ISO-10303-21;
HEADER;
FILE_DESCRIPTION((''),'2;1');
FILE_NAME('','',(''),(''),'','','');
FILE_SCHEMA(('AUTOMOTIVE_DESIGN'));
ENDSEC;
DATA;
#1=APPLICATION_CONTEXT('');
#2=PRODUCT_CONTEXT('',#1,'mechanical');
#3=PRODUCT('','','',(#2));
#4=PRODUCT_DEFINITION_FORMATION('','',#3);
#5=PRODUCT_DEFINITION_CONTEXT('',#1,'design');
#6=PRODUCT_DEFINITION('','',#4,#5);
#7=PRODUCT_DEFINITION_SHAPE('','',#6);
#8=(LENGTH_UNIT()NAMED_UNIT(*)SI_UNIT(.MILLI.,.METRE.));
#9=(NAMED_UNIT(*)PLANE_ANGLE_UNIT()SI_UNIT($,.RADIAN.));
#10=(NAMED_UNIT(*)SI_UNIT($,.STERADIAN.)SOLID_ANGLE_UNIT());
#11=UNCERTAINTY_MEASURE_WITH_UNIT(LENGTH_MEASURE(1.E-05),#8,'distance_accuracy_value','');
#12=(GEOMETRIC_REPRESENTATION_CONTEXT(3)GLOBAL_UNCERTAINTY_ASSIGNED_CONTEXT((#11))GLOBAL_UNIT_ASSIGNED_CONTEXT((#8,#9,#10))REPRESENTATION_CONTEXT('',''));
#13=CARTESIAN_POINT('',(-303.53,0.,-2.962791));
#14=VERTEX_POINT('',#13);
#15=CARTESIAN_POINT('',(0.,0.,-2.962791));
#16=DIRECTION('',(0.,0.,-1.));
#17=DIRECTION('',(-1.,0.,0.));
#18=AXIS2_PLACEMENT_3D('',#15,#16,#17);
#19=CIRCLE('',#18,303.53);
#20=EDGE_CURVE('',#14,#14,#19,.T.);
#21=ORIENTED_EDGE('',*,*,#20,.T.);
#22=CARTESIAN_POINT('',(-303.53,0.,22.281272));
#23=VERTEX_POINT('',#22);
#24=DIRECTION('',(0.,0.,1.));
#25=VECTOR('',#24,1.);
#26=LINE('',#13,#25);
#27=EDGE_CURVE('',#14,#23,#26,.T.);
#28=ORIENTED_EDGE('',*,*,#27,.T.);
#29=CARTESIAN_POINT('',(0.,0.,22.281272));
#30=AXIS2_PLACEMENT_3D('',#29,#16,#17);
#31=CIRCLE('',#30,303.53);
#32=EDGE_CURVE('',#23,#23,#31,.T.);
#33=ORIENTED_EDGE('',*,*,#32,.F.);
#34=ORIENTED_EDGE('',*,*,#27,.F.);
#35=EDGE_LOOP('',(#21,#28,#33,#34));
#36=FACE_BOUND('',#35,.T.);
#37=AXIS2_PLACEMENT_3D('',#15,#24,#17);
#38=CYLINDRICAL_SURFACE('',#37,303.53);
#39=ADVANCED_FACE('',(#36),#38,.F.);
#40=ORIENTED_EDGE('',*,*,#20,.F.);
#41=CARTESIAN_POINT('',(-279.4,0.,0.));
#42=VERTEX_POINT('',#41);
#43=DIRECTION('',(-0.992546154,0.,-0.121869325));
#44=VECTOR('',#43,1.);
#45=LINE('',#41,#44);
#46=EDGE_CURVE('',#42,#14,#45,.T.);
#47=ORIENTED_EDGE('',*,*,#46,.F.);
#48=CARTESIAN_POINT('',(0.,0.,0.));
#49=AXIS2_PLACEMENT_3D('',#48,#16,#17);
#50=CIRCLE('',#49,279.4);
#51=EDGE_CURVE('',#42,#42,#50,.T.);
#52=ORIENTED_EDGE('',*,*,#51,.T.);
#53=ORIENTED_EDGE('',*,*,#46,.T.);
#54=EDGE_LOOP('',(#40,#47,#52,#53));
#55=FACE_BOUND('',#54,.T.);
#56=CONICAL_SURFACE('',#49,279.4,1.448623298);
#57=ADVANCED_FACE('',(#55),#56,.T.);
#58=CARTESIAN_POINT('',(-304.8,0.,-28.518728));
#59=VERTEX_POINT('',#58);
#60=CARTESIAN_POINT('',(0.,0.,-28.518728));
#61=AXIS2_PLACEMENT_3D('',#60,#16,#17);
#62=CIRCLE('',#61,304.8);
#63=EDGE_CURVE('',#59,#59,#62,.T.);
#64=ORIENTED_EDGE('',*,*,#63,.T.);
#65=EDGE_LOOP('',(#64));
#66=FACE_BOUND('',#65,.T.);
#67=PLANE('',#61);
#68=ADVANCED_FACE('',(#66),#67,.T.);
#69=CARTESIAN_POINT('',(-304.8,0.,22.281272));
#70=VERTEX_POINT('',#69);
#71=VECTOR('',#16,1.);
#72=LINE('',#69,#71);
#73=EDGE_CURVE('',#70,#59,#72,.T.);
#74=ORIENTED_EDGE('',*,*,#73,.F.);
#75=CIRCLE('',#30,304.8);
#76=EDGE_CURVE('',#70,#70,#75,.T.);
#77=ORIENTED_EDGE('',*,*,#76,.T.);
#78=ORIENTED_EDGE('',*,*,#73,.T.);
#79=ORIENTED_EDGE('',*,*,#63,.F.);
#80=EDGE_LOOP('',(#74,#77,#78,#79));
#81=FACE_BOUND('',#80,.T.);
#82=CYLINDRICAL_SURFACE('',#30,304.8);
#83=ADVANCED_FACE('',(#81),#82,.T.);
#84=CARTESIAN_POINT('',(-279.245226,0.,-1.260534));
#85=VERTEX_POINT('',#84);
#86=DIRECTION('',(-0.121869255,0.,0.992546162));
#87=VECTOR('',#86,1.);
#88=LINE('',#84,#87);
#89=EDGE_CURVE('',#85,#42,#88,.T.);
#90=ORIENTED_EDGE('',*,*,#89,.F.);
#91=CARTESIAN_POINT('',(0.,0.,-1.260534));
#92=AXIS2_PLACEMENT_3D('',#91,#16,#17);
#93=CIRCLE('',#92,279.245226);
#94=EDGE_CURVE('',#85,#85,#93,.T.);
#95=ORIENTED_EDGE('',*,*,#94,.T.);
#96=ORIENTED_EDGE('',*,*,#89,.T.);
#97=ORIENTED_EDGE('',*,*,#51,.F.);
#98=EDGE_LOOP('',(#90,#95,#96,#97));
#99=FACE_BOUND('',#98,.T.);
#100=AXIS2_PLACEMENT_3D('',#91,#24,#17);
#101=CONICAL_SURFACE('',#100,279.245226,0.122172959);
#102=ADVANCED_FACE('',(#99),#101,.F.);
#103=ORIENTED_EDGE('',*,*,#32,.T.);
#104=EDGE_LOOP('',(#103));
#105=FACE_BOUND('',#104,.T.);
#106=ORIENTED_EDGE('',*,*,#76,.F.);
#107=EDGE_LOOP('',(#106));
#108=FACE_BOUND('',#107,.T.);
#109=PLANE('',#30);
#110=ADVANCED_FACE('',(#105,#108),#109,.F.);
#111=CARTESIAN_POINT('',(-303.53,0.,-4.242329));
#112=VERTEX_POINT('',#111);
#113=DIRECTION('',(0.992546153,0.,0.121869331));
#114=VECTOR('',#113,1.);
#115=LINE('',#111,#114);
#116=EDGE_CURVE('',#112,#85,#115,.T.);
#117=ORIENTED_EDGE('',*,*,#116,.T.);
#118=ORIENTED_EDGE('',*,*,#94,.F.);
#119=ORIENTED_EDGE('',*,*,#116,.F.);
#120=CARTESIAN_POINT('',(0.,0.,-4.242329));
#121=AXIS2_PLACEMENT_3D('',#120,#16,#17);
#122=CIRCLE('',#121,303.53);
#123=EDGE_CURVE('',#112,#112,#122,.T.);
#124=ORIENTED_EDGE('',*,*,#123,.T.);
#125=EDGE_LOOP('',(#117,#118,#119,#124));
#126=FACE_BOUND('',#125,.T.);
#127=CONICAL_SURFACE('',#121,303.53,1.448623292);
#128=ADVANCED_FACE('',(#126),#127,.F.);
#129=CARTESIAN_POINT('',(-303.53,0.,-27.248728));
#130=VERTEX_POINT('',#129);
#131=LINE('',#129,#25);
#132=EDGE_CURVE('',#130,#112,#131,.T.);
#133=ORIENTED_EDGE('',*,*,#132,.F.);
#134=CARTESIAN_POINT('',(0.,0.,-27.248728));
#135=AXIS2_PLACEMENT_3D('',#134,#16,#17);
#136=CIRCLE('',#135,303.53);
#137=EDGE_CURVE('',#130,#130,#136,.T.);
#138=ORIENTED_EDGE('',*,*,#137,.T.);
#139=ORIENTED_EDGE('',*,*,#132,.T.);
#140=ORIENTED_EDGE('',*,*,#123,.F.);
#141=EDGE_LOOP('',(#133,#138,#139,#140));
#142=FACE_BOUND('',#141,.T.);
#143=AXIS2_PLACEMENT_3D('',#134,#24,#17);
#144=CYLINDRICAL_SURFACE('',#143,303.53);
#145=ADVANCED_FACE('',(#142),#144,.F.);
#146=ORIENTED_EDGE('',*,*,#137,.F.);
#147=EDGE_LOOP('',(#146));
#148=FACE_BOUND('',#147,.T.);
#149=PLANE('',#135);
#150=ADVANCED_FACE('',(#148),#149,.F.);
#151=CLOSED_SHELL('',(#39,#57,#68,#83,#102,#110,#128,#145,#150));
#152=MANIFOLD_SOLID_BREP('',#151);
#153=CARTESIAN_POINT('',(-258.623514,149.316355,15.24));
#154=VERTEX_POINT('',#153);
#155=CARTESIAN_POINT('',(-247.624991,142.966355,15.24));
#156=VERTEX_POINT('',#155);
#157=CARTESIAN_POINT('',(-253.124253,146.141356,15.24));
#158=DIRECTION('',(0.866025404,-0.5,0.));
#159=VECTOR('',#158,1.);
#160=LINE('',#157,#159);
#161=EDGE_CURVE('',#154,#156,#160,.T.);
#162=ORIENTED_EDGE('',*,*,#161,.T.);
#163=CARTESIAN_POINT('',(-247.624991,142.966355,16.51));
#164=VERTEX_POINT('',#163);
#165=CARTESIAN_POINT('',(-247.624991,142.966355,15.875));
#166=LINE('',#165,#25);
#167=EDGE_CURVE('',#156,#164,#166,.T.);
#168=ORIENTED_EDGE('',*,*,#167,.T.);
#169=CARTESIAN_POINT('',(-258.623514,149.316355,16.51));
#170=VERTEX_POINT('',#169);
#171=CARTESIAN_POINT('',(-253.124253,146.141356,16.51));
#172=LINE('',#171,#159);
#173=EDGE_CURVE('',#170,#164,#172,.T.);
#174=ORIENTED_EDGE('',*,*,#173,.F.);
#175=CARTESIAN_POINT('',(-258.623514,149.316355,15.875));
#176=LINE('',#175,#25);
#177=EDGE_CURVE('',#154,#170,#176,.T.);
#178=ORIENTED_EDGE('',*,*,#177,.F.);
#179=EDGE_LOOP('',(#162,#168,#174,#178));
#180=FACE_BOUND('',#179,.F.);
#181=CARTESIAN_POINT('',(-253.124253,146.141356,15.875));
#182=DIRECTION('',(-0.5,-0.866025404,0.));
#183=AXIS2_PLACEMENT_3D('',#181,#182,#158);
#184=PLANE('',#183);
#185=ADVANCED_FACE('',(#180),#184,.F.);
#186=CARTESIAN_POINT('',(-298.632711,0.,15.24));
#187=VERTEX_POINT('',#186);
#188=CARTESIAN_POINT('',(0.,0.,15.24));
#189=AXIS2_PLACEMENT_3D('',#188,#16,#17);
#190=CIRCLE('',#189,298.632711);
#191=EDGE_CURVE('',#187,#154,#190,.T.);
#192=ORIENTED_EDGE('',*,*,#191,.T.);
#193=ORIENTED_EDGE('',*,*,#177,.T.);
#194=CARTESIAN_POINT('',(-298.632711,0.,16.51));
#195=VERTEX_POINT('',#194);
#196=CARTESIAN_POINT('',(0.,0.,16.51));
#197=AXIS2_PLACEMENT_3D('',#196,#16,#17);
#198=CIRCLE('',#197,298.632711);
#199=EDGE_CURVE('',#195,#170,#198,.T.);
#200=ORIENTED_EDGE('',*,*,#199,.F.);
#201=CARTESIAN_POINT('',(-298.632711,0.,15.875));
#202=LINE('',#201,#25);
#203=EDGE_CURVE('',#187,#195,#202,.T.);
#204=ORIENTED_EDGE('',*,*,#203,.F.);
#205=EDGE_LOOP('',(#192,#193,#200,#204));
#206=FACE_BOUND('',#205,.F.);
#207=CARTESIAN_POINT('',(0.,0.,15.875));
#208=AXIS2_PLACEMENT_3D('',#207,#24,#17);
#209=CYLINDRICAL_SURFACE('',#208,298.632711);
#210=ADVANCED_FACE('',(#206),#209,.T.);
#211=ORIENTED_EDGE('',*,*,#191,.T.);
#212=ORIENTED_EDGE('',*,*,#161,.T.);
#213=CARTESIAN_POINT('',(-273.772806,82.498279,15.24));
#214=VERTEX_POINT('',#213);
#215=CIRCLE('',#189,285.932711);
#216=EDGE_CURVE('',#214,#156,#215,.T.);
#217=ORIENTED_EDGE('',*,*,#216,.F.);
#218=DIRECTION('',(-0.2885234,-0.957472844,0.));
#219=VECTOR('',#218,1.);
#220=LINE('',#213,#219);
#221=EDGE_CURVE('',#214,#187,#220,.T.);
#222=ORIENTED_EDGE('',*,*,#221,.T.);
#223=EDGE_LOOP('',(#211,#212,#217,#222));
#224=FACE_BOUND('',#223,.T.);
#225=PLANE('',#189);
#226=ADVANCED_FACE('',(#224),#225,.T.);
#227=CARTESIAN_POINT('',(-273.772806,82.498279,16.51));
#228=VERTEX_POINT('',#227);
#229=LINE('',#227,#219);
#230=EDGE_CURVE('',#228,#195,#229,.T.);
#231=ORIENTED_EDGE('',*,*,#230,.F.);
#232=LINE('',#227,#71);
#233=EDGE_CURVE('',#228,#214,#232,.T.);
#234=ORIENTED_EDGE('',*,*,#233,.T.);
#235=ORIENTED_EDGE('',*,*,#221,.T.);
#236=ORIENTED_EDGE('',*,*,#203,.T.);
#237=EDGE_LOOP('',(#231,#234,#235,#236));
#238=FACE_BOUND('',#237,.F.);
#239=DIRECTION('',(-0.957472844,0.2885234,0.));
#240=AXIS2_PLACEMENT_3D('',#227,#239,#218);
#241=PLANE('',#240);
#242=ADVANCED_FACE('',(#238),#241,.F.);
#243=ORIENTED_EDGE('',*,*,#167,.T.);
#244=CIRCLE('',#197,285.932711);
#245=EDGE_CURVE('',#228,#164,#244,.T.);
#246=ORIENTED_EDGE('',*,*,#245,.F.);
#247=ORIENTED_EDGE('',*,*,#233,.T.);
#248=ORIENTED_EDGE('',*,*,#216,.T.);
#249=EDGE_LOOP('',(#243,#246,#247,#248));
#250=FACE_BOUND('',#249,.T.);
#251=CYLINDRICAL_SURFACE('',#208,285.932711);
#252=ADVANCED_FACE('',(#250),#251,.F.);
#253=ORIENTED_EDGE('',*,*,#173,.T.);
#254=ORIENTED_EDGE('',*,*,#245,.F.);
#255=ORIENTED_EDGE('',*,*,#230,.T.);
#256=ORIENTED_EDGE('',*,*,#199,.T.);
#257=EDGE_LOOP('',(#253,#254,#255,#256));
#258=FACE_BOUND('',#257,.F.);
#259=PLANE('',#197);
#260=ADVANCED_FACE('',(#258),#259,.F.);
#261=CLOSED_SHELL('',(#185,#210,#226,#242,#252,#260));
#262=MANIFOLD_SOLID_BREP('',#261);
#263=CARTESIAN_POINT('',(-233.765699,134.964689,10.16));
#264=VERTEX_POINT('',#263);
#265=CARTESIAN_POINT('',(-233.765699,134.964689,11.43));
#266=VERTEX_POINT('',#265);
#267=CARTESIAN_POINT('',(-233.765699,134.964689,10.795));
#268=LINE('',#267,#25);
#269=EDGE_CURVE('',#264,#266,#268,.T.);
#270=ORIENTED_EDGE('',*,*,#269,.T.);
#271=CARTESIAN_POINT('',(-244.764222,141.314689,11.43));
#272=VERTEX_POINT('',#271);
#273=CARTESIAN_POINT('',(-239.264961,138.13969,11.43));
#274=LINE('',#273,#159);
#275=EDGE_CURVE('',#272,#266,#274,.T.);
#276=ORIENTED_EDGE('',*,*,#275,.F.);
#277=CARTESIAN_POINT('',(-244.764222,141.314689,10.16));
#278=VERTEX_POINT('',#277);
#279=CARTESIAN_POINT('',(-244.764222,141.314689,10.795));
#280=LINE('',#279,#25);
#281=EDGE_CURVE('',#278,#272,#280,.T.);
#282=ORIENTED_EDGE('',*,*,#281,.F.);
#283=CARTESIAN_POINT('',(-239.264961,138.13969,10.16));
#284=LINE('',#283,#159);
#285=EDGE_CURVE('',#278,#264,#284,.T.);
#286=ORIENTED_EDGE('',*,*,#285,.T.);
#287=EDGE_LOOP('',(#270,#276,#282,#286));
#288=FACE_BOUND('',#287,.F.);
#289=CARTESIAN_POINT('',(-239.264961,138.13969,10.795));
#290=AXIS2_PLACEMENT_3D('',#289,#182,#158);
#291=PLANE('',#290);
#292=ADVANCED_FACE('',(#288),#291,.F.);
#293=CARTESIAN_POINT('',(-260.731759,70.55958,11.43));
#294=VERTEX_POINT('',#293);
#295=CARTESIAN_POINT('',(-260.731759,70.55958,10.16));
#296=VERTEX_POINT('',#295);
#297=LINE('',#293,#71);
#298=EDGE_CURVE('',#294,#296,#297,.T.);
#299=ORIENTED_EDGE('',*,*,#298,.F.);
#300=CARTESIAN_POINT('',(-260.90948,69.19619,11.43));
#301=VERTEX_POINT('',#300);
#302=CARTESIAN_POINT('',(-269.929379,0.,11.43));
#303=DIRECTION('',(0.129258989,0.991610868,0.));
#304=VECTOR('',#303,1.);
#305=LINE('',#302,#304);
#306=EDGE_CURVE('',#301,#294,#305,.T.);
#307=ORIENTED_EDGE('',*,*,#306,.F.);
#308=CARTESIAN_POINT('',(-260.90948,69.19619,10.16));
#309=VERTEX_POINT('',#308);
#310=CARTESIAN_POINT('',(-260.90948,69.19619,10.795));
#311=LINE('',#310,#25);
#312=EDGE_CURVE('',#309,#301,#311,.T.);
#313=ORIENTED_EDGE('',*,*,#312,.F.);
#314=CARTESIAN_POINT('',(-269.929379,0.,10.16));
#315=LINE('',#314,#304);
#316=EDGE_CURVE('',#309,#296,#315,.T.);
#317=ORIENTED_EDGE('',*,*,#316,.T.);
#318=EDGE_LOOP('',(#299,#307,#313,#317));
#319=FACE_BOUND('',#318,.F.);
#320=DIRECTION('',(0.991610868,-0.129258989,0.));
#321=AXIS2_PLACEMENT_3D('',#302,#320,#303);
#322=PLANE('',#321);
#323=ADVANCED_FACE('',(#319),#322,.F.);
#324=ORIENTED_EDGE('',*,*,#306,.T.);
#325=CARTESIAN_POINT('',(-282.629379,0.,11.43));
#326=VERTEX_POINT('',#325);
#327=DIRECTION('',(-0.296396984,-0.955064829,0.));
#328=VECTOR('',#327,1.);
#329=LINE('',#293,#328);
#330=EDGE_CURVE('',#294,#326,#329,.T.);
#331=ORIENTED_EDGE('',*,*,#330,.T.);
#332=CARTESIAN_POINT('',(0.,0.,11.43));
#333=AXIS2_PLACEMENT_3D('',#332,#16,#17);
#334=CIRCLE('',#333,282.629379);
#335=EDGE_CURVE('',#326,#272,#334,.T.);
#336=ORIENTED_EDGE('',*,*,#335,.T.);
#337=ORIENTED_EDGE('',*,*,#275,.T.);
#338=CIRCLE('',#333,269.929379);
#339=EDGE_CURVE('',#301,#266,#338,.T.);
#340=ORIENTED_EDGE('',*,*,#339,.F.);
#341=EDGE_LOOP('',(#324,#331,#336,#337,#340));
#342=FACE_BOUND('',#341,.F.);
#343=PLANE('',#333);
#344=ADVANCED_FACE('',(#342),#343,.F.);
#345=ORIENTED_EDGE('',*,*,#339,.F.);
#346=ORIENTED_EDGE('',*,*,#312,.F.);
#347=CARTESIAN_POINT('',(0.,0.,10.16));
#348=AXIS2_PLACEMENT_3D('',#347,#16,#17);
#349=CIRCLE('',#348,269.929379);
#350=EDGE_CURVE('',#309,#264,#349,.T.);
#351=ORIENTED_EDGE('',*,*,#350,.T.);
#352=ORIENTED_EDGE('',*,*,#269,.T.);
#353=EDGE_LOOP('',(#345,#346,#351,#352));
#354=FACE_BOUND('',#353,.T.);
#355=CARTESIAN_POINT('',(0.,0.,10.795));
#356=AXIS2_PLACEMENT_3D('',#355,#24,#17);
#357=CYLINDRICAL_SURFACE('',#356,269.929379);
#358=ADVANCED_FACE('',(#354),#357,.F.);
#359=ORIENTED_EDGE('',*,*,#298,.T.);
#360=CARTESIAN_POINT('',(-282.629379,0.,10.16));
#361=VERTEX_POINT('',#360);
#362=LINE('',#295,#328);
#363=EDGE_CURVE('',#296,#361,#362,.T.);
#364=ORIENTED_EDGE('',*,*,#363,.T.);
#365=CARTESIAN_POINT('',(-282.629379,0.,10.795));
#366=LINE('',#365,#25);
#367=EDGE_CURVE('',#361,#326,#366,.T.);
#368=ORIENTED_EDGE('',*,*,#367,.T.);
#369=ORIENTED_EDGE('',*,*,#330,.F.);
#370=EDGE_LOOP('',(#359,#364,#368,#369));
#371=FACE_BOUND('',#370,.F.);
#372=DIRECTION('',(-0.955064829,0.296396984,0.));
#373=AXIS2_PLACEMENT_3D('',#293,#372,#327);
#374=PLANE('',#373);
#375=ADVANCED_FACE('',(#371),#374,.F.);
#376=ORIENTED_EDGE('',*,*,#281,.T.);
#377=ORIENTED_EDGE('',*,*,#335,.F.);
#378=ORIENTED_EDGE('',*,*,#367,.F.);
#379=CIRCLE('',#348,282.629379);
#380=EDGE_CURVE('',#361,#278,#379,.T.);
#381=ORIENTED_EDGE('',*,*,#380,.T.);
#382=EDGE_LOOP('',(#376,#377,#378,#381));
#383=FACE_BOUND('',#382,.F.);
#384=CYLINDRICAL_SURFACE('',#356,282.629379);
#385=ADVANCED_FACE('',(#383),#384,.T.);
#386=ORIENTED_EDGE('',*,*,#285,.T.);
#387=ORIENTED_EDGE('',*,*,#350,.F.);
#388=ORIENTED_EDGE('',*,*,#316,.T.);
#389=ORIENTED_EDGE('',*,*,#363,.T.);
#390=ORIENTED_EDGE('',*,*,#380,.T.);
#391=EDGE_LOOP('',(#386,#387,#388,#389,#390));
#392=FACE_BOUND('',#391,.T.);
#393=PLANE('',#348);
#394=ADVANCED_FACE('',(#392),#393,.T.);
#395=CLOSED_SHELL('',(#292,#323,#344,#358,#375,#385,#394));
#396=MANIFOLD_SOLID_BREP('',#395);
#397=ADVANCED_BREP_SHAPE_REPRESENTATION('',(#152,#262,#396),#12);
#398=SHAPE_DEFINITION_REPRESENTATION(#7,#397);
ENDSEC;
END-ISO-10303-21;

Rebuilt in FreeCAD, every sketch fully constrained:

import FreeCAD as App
import Part
import Sketcher
Q = App.Units.Quantity

doc = App.newDocument("Part")
body = doc.addObject("PartDesign::Body", "Body")

# Sketch on XZ plane
sketch1 = body.newObject("Sketcher::SketchObject", "Sketch")
sketch1.AttachmentSupport = (doc.getObject("XZ_Plane"), [""])
sketch1.MapMode = "FlatFace"
sketch1.addGeometry([
    Part.LineSegment(App.Vector(-304.8, 22.281272, 0), App.Vector(-304.8, -28.518728, 0)),  # 0
    Part.LineSegment(App.Vector(-304.8, -28.518728, 0), App.Vector(0, -28.518728, 0)),  # 1
    Part.LineSegment(App.Vector(0, -28.518728, 0), App.Vector(0, -27.248728, 0)),  # 2
    Part.LineSegment(App.Vector(0, -27.248728, 0), App.Vector(-303.53, -27.248728, 0)),  # 3
    Part.LineSegment(App.Vector(-303.53, -27.248728, 0), App.Vector(-303.53, -4.242329, 0)),  # 4
    Part.LineSegment(App.Vector(-303.53, -4.242329, 0), App.Vector(-279.245226, -1.260534, 0)),  # 5
    Part.LineSegment(App.Vector(-279.245226, -1.260534, 0), App.Vector(-279.4, 0, 0)),  # 6
    Part.LineSegment(App.Vector(-279.4, 0, 0), App.Vector(-303.53, -2.962791, 0)),  # 7
    Part.LineSegment(App.Vector(-303.53, -2.962791, 0), App.Vector(-303.53, 22.281272, 0)),  # 8
    Part.LineSegment(App.Vector(-303.53, 22.281272, 0), App.Vector(-304.8, 22.281272, 0)),  # 9
], False)
sketch1.addConstraint([
    Sketcher.Constraint("Coincident", 0, 2, 1, 1),
    Sketcher.Constraint("Coincident", 1, 2, 2, 1),
    Sketcher.Constraint("Coincident", 2, 2, 3, 1),
    Sketcher.Constraint("Coincident", 3, 2, 4, 1),
    Sketcher.Constraint("Coincident", 4, 2, 5, 1),
    Sketcher.Constraint("Coincident", 5, 2, 6, 1),
    Sketcher.Constraint("Coincident", 6, 2, 7, 1),
    Sketcher.Constraint("Coincident", 7, 2, 8, 1),
    Sketcher.Constraint("Coincident", 8, 2, 9, 1),
    Sketcher.Constraint("Coincident", 9, 2, 0, 1),
    Sketcher.Constraint("Vertical", 0),
    Sketcher.Constraint("Horizontal", 1),
    Sketcher.Constraint("Vertical", 2),
    Sketcher.Constraint("Horizontal", 3),
    Sketcher.Constraint("Vertical", 4),
    Sketcher.Constraint("Vertical", 8),
    Sketcher.Constraint("Horizontal", 9),
    Sketcher.Constraint("PointOnObject", 1, 2, -2),
    Sketcher.Constraint("PointOnObject", 6, 2, -1),
    Sketcher.Constraint("Perpendicular", 5, 6),
    Sketcher.Constraint("Perpendicular", 6, 7),
    Sketcher.Constraint("Vertical", 4, 2, 7, 2),
    Sketcher.Constraint("Equal", 9, 2),
    Sketcher.Constraint("DistanceX", 1, 1, 1, 2, Q("12 in")),
    Sketcher.Constraint("DistanceY", 0, 2, 0, 1, Q("2 in")),
    Sketcher.Constraint("DistanceX", 6, 2, -1, 1, Q("11 in")),
    Sketcher.Constraint("Angle", 5, Q("6.999999 deg")),
    Sketcher.Constraint("DistanceX", 3, 2, 3, 1, Q("11.95 in")),
    Sketcher.Constraint("Distance", 6, Q("0.05 in")),
    Sketcher.Constraint("DistanceY", 4, 1, 4, 2, Q("23.006399 mm")),
])
revolution = body.newObject("PartDesign::Revolution", "Revolution")
revolution.Profile = sketch1
revolution.ReferenceAxis = (sketch1, ["V_Axis"])
revolution.Angle = 360
body2 = doc.addObject("PartDesign::Body", "Body001")
body2.AllowCompound = True

# Sketch on XZ plane
sketch2 = body2.newObject("Sketcher::SketchObject", "Sketch001")
sketch2.AttachmentSupport = (doc.getObject("XZ_Plane001"), [""])
sketch2.MapMode = "FlatFace"
sketch2.addGeometry([
    Part.LineSegment(App.Vector(-282.629379, 11.43, 0), App.Vector(-282.629379, 10.16, 0)),  # 0
    Part.LineSegment(App.Vector(-282.629379, 10.16, 0), App.Vector(-269.929379, 10.16, 0)),  # 1
    Part.LineSegment(App.Vector(-269.929379, 10.16, 0), App.Vector(-269.929379, 11.43, 0)),  # 2
    Part.LineSegment(App.Vector(-269.929379, 11.43, 0), App.Vector(-282.629379, 11.43, 0)),  # 3
    Part.LineSegment(App.Vector(-298.632711, 16.51, 0), App.Vector(-298.632711, 15.24, 0)),  # 4
    Part.LineSegment(App.Vector(-298.632711, 15.24, 0), App.Vector(-285.932711, 15.24, 0)),  # 5
    Part.LineSegment(App.Vector(-285.932711, 15.24, 0), App.Vector(-285.932711, 16.51, 0)),  # 6
    Part.LineSegment(App.Vector(-285.932711, 16.51, 0), App.Vector(-298.632711, 16.51, 0)),  # 7
], False)
sketch2.addConstraint([
    Sketcher.Constraint("Coincident", 0, 2, 1, 1),
    Sketcher.Constraint("Coincident", 1, 2, 2, 1),
    Sketcher.Constraint("Coincident", 2, 2, 3, 1),
    Sketcher.Constraint("Coincident", 3, 2, 0, 1),
    Sketcher.Constraint("Coincident", 4, 2, 5, 1),
    Sketcher.Constraint("Coincident", 5, 2, 6, 1),
    Sketcher.Constraint("Coincident", 6, 2, 7, 1),
    Sketcher.Constraint("Coincident", 7, 2, 4, 1),
    Sketcher.Constraint("Vertical", 0),
    Sketcher.Constraint("Horizontal", 1),
    Sketcher.Constraint("Vertical", 2),
    Sketcher.Constraint("Horizontal", 3),
    Sketcher.Constraint("Vertical", 4),
    Sketcher.Constraint("Horizontal", 5),
    Sketcher.Constraint("Vertical", 6),
    Sketcher.Constraint("Horizontal", 7),
    Sketcher.Constraint("Equal", 3, 5),
    Sketcher.Constraint("Equal", 2, 4),
    Sketcher.Constraint("DistanceX", 1, 1, 1, 2, Q("0.5 in")),
    Sketcher.Constraint("DistanceY", 0, 2, 0, 1, Q("0.05 in")),
    Sketcher.Constraint("DistanceY", -1, 1, 0, 2, Q("0.4 in")),
    Sketcher.Constraint("DistanceY", -1, 1, 4, 2, Q("0.6 in")),
    Sketcher.Constraint("DistanceX", 0, 2, -1, 1, Q("282.629379 mm")),
    Sketcher.Constraint("DistanceX", 4, 2, -1, 1, Q("298.632711 mm")),
])
revolution2 = body2.newObject("PartDesign::Revolution", "Revolution001")
revolution2.Profile = sketch2
revolution2.ReferenceAxis = (sketch2, ["V_Axis"])
revolution2.Angle = 30
revolution2.Reversed = True

# Sketch on XY plane
sketch3 = body2.newObject("Sketcher::SketchObject", "Sketch002")
sketch3.AttachmentSupport = (doc.getObject("XY_Plane001"), [""])
sketch3.MapMode = "FlatFace"
sketch3.AttachmentOffset = App.Placement(App.Vector(0, 0, 0.65 * 25.4), App.Rotation())
sketch3.addGeometry([
    Part.LineSegment(App.Vector(-273.772806, 82.498279, 0), App.Vector(-298.632711, 0, 0)),
    Part.LineSegment(App.Vector(-298.632711, 0, 0), App.Vector(-285.932711, 0, 0)),
    Part.LineSegment(App.Vector(-285.932711, 0, 0), App.Vector(-273.772806, 82.498279, 0)),
], False)
sketch3.addConstraint([
    Sketcher.Constraint("Coincident", 0, 2, 1, 1),
    Sketcher.Constraint("Coincident", 1, 2, 2, 1),
    Sketcher.Constraint("Coincident", 2, 2, 0, 1),
    Sketcher.Constraint("Horizontal", 1),
    Sketcher.Constraint("PointOnObject", 0, 2, -1),
    Sketcher.Constraint("DistanceX", 1, 1, 1, 2, Q("0.5 in")),
    Sketcher.Constraint("DistanceX", 0, 2, -1, 1, Q("298.632711 mm")),
    Sketcher.Constraint("DistanceY", -1, 1, 2, 2, Q("82.498279 mm")),
    Sketcher.Constraint("Distance", 0, Q("86.162526 mm")),
])
pocket1 = body2.newObject("PartDesign::Pocket", "Pocket")
pocket1.Profile = sketch3
pocket1.Type = "ThroughAll"

# Sketch on XY plane
sketch4 = body2.newObject("Sketcher::SketchObject", "Sketch003")
sketch4.AttachmentSupport = (doc.getObject("XY_Plane001"), [""])
sketch4.MapMode = "FlatFace"
sketch4.AttachmentOffset = App.Placement(App.Vector(0, 0, 0.45 * 25.4), App.Rotation())
sketch4.addGeometry([
    Part.LineSegment(App.Vector(-260.731759, 70.55958, 0), App.Vector(-282.629379, 0, 0)),
    Part.LineSegment(App.Vector(-282.629379, 0, 0), App.Vector(-269.929379, 0, 0)),
    Part.LineSegment(App.Vector(-269.929379, 0, 0), App.Vector(-260.731759, 70.55958, 0)),
], False)
sketch4.addConstraint([
    Sketcher.Constraint("Coincident", 0, 2, 1, 1),
    Sketcher.Constraint("Coincident", 1, 2, 2, 1),
    Sketcher.Constraint("Coincident", 2, 2, 0, 1),
    Sketcher.Constraint("Horizontal", 1),
    Sketcher.Constraint("PointOnObject", 0, 2, -1),
    Sketcher.Constraint("DistanceX", 1, 1, 1, 2, Q("0.5 in")),
    Sketcher.Constraint("Distance", 0, Q("73.879362 mm")),
    Sketcher.Constraint("Distance", 2, Q("71.156521 mm")),
    Sketcher.Constraint("DistanceX", 0, 2, -1, 1, Q("282.629379 mm")),
])
pocket2 = body2.newObject("PartDesign::Pocket", "Pocket001")
pocket2.Profile = sketch4
pocket2.Type = "ThroughAll"

doc.recompute()
